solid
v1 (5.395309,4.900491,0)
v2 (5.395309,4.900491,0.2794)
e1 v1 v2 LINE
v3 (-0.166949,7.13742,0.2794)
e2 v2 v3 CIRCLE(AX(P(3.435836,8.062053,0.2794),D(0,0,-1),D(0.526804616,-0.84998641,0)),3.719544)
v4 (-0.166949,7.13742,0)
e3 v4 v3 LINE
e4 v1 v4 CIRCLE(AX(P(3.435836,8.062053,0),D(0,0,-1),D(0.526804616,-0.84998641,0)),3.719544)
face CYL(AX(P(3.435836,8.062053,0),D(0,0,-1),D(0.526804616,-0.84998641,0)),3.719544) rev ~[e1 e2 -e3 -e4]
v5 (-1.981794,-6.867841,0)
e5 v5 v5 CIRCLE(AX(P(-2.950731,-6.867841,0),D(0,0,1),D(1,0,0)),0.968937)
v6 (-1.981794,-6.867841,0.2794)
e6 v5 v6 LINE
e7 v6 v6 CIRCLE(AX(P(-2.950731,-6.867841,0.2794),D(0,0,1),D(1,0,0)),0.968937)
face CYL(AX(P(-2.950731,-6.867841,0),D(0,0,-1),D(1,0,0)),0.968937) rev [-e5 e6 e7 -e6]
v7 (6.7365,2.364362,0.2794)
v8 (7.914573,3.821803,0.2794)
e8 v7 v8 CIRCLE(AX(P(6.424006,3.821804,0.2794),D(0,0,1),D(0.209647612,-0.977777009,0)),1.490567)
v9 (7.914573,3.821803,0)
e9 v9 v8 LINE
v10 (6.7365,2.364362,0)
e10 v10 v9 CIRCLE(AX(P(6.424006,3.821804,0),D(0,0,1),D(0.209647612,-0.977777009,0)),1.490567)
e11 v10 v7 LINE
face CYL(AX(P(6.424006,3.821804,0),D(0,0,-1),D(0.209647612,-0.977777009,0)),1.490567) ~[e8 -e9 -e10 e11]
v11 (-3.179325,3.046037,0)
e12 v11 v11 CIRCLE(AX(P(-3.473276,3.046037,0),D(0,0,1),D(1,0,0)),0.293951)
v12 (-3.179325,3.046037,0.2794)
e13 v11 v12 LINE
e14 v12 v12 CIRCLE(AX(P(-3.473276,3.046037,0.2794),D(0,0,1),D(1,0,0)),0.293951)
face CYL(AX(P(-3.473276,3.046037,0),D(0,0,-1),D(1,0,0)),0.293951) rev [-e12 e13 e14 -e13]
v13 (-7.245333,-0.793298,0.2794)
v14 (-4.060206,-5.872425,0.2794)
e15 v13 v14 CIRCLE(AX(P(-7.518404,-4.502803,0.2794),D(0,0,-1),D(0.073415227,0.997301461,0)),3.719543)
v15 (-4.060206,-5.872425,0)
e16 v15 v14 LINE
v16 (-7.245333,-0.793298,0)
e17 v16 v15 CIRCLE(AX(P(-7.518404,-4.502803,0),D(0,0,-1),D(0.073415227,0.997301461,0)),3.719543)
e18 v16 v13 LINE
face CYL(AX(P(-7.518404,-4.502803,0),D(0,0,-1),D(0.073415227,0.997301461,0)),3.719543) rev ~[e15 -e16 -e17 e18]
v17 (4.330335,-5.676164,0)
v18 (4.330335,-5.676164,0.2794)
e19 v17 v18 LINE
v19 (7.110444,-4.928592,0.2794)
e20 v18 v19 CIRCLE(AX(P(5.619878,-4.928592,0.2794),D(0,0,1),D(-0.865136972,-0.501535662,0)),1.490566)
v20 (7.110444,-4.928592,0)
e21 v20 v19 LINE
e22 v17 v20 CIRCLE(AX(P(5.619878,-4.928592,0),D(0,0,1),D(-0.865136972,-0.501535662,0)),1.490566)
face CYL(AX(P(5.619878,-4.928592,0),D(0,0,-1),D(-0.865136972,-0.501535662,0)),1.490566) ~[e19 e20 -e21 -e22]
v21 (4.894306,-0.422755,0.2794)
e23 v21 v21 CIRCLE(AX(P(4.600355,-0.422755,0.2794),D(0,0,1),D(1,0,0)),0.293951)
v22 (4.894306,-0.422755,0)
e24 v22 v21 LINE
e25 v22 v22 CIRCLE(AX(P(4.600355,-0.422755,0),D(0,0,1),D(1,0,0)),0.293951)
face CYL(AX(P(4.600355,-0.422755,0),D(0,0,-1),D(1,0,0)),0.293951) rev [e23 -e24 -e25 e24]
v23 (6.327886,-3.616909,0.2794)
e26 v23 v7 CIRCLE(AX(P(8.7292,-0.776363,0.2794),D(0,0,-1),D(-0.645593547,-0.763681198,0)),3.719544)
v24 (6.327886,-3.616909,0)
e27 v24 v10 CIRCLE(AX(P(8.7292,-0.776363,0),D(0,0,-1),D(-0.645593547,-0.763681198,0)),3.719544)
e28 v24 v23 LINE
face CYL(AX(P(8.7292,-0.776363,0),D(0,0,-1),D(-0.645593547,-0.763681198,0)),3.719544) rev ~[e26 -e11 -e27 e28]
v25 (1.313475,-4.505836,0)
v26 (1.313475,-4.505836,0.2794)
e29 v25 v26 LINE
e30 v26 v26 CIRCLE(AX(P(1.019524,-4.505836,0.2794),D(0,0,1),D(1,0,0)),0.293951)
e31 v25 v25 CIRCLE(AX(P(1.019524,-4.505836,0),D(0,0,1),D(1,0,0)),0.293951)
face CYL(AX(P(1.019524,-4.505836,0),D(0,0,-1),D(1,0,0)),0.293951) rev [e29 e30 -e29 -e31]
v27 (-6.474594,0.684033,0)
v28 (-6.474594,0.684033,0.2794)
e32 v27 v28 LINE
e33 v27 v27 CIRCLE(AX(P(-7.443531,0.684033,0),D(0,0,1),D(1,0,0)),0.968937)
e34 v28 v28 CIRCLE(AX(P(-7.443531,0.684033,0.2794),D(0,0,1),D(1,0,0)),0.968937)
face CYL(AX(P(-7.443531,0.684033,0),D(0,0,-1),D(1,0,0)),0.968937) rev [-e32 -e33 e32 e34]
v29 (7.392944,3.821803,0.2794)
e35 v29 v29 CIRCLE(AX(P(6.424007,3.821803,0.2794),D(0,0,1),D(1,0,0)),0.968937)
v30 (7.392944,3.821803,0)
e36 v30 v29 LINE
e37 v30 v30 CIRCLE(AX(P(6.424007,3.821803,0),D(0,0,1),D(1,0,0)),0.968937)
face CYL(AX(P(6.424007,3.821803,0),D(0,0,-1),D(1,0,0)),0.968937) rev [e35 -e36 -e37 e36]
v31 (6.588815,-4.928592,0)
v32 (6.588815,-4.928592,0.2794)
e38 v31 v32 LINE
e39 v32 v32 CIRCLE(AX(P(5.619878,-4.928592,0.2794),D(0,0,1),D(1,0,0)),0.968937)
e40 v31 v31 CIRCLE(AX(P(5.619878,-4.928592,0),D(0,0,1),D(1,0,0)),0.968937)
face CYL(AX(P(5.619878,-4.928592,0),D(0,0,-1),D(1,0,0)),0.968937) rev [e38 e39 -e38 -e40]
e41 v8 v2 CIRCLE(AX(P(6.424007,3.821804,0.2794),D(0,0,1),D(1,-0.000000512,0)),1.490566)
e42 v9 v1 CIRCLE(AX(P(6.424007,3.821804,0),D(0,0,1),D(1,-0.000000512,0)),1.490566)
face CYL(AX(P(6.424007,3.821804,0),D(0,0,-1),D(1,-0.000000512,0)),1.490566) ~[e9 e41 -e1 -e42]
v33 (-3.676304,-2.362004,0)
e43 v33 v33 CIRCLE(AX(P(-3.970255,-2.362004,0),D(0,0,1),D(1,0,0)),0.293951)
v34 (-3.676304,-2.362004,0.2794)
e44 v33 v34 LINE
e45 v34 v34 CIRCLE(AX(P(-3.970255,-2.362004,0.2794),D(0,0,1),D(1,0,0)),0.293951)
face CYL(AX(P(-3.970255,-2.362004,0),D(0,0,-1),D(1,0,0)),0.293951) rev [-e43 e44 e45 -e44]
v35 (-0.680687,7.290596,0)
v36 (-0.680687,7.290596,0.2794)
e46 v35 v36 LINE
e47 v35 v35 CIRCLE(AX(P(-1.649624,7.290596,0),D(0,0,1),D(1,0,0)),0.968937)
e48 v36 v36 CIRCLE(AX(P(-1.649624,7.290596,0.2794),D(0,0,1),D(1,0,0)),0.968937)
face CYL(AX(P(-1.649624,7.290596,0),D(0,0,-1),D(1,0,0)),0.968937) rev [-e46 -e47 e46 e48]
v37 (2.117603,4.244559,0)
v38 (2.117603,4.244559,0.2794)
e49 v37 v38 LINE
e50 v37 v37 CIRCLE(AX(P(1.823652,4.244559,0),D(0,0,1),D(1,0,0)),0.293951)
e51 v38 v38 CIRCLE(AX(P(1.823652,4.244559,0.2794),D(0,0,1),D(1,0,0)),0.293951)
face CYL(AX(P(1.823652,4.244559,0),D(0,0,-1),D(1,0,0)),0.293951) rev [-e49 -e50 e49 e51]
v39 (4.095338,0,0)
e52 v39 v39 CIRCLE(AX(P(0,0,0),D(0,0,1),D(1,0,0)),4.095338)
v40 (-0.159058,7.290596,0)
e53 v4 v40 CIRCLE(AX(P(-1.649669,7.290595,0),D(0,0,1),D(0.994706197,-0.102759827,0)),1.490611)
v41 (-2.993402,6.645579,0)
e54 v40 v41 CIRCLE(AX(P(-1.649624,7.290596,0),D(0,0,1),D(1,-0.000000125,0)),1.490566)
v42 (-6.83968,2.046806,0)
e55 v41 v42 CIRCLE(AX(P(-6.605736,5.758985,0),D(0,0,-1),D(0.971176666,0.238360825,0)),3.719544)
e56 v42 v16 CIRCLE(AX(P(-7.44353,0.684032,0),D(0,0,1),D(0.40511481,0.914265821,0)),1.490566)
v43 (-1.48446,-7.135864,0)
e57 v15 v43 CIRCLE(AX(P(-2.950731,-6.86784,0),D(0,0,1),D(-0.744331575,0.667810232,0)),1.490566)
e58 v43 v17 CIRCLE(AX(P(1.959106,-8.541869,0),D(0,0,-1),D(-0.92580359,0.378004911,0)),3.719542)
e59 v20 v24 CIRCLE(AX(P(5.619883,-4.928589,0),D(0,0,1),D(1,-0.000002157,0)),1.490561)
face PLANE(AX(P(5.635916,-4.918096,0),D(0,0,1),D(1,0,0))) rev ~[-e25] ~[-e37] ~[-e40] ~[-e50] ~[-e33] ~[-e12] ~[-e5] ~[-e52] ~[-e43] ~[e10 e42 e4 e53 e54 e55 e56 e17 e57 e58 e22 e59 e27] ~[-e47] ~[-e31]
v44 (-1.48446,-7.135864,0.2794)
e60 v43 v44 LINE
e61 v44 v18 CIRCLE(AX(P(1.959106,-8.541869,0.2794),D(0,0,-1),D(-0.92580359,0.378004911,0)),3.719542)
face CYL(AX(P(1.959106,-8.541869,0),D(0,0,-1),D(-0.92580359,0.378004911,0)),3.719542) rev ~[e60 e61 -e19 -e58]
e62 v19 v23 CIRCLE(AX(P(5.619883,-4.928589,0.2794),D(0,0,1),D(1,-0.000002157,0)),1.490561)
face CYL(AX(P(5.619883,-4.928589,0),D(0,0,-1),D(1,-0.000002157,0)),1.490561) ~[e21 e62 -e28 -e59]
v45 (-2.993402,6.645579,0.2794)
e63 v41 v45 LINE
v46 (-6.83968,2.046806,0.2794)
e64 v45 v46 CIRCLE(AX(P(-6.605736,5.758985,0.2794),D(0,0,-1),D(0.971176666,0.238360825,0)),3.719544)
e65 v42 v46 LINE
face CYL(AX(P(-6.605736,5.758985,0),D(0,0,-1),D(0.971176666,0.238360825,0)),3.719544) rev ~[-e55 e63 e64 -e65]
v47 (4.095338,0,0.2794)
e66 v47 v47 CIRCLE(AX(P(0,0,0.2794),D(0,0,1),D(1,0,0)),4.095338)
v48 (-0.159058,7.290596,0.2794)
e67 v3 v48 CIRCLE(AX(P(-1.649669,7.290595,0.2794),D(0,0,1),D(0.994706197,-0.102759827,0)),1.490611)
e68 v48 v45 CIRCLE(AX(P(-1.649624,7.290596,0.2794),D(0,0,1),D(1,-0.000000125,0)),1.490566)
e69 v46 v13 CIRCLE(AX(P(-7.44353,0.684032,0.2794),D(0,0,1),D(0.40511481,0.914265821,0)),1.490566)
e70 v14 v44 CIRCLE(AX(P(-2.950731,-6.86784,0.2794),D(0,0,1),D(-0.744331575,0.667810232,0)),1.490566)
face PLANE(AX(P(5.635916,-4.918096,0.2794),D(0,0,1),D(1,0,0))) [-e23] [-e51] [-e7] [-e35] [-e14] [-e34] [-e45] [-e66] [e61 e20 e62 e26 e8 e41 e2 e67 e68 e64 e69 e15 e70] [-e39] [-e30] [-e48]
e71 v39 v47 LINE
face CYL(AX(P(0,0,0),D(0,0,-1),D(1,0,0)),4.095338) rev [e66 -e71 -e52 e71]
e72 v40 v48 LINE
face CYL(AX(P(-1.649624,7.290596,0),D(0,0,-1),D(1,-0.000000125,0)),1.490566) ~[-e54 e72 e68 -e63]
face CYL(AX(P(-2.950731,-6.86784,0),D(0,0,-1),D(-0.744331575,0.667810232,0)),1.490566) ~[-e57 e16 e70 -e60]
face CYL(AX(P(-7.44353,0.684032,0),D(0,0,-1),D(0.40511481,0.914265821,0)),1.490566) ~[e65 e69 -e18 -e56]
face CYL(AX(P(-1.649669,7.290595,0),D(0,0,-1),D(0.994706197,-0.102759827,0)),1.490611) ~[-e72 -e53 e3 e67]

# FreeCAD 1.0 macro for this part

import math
import FreeCAD as App
import Part
import Sketcher
Q = App.Units.Quantity

doc = App.newDocument("Part")
body = doc.addObject("PartDesign::Body", "Body")

# Sketch on XY plane
sketch1 = body.newObject("Sketcher::SketchObject", "Sketch")
sketch1.AttachmentSupport = (doc.getObject("XY_Plane"), [""])
sketch1.MapMode = "FlatFace"
sketch1.addGeometry([
    Part.ArcOfCircle(Part.Circle(App.Vector(5.619878, -4.928592, 0), App.Vector(0, 0, 1), 1.490566), math.radians(-149.898349), math.radians(0.000008)),  # 0
    Part.ArcOfCircle(Part.Circle(App.Vector(5.619883, -4.928589, 0), App.Vector(0, 0, 1), 1.490561), math.radians(-0.000124), math.radians(61.641238)),  # 1
    Part.ArcOfCircle(Part.Circle(App.Vector(8.7292, -0.776363, 0), App.Vector(0, 0, 1), 3.719544), math.radians(122.393948), math.radians(229.789808)),  # 2
    Part.ArcOfCircle(Part.Circle(App.Vector(6.424006, 3.821804, 0), App.Vector(0, 0, 1), 1.490567), math.radians(-77.898298), math.radians(-0.000035)),  # 3
    Part.ArcOfCircle(Part.Circle(App.Vector(6.424007, 3.821804, 0), App.Vector(0, 0, 1), 1.490566), math.radians(-0.000029), math.radians(133.64115)),  # 4
    Part.ArcOfCircle(Part.Circle(App.Vector(3.435836, 8.062053, 0), App.Vector(0, 0, 1), 3.719544), math.radians(-165.606047), math.radians(-58.210191)),  # 5
    Part.ArcOfCircle(Part.Circle(App.Vector(-1.649669, 7.290595, 0), App.Vector(0, 0, 1), 1.490611), math.radians(-5.898116), math.radians(0.000042)),  # 6
    Part.ArcOfCircle(Part.Circle(App.Vector(-1.649624, 7.290596, 0), App.Vector(0, 0, 1), 1.490566), math.radians(-0.000007), math.radians(205.641134)),  # 7
    Part.ArcOfCircle(Part.Circle(App.Vector(-6.605736, 5.758985, 0), App.Vector(0, 0, 1), 3.719544), math.radians(-93.606047), math.radians(13.789815)),  # 8
    Part.ArcOfCircle(Part.Circle(App.Vector(-7.44353, 0.684032, 0), App.Vector(0, 0, 1), 1.490566), math.radians(66.101678), math.radians(277.641128)),  # 9
    Part.ArcOfCircle(Part.Circle(App.Vector(-7.518404, -4.502803, 0), App.Vector(0, 0, 1), 3.719543), math.radians(-21.606076), math.radians(85.78983)),  # 10
    Part.ArcOfCircle(Part.Circle(App.Vector(-2.950731, -6.86784, 0), App.Vector(0, 0, 1), 1.490566), math.radians(138.101718), math.radians(349.641104)),  # 11
    Part.ArcOfCircle(Part.Circle(App.Vector(1.959106, -8.541869, 0), App.Vector(0, 0, 1), 3.719542), math.radians(50.393926), math.radians(157.789843)),  # 12
    Part.Circle(App.Vector(-2.950731, -6.867841, 0), App.Vector(0, 0, 1), 0.968937),  # 13
    Part.Circle(App.Vector(-3.970255, -2.362004, 0), App.Vector(0, 0, 1), 0.293951),  # 14
    Part.Circle(App.Vector(1.019524, -4.505836, 0), App.Vector(0, 0, 1), 0.293951),  # 15
    Part.Circle(App.Vector(5.619878, -4.928592, 0), App.Vector(0, 0, 1), 0.968937),  # 16
    Part.Circle(App.Vector(0, 0, 0), App.Vector(0, 0, 1), 4.095338),  # 17
    Part.Circle(App.Vector(4.600355, -0.422755, 0), App.Vector(0, 0, 1), 0.293951),  # 18
    Part.Circle(App.Vector(-7.443531, 0.684033, 0), App.Vector(0, 0, 1), 0.968937),  # 19
    Part.Circle(App.Vector(-3.473276, 3.046037, 0), App.Vector(0, 0, 1), 0.293951),  # 20
    Part.Circle(App.Vector(-1.649624, 7.290596, 0), App.Vector(0, 0, 1), 0.968937),  # 21
    Part.Circle(App.Vector(6.424007, 3.821803, 0), App.Vector(0, 0, 1), 0.968937),  # 22
    Part.Circle(App.Vector(1.823652, 4.244559, 0), App.Vector(0, 0, 1), 0.293951),  # 23
], False)
sketch1.addConstraint([
    Sketcher.Constraint("Coincident", 0, 2, 1, 1),
    Sketcher.Constraint("Coincident", 1, 2, 2, 2),
    Sketcher.Constraint("Coincident", 2, 1, 3, 1),
    Sketcher.Constraint("Coincident", 3, 2, 4, 1),
    Sketcher.Constraint("Coincident", 4, 2, 5, 2),
    Sketcher.Constraint("Coincident", 5, 1, 6, 1),
    Sketcher.Constraint("Coincident", 6, 2, 7, 1),
    Sketcher.Constraint("Coincident", 7, 2, 8, 2),
    Sketcher.Constraint("Coincident", 8, 1, 9, 1),
    Sketcher.Constraint("Coincident", 9, 2, 10, 2),
    Sketcher.Constraint("Coincident", 10, 1, 11, 1),
    Sketcher.Constraint("Coincident", 11, 2, 12, 2),
    Sketcher.Constraint("Coincident", 12, 1, 0, 1),
    Sketcher.Constraint("Coincident", 17, 3, -1, 1),
    Sketcher.Constraint("Coincident", 1, 3, 0, 3),
    Sketcher.Constraint("Coincident", 4, 3, 3, 3),
    Sketcher.Constraint("Coincident", 13, 3, 11, 3),
    Sketcher.Constraint("Coincident", 16, 3, 0, 3),
    Sketcher.Constraint("Coincident", 19, 3, 9, 3),
    Sketcher.Constraint("Coincident", 21, 3, 7, 3),
    Sketcher.Constraint("Coincident", 22, 3, 3, 3),
    Sketcher.Constraint("DistanceX", 10, 3, -1, 1, Q("0.2960002 in")),
    Sketcher.Constraint("Radius", 1, Q("1.490561 mm")),
    Sketcher.Constraint("Radius", 6, Q("1.490611 mm")),
    Sketcher.Constraint("Diameter", 13, Q("1.937874 mm")),
    Sketcher.Constraint("Diameter", 14, Q("0.587902 mm")),
    Sketcher.Constraint("Diameter", 15, Q("0.587902 mm")),
    Sketcher.Constraint("Diameter", 16, Q("1.937874 mm")),
    Sketcher.Constraint("Diameter", 17, Q("8.190676 mm")),
    Sketcher.Constraint("Diameter", 18, Q("0.587902 mm")),
    Sketcher.Constraint("Diameter", 19, Q("1.937874 mm")),
    Sketcher.Constraint("Diameter", 20, Q("0.587902 mm")),
    Sketcher.Constraint("Diameter", 21, Q("1.937874 mm")),
    Sketcher.Constraint("Diameter", 22, Q("1.937874 mm")),
    Sketcher.Constraint("Diameter", 23, Q("0.587902 mm")),
    Sketcher.Constraint("Radius", 2, Q("3.719544 mm")),
    Sketcher.Constraint("Radius", 3, Q("1.490567 mm")),
    Sketcher.Constraint("Radius", 5, Q("3.719544 mm")),
    Sketcher.Constraint("Radius", 7, Q("1.490566 mm")),
    Sketcher.Constraint("Radius", 8, Q("3.719544 mm")),
    Sketcher.Constraint("Radius", 9, Q("1.490566 mm")),
    Sketcher.Constraint("Radius", 10, Q("3.719543 mm")),
    Sketcher.Constraint("Radius", 11, Q("1.490566 mm")),
    Sketcher.Constraint("Radius", 12, Q("3.719542 mm")),
    Sketcher.Constraint("DistanceX", 5, 3, 2, 3, Q("0.2084001 in")),
    Sketcher.Constraint("DistanceX", 18, 3, 2, 1, Q("0.0841002 in")),
    Sketcher.Constraint("DistanceX", 4, 2, 3, 3, Q("0.0404999 in")),
    Sketcher.Constraint("DistanceX", -1, 1, 2, 3, Q("8.7292 mm")),
    Sketcher.Constraint("DistanceX", -1, 1, 2, 1, Q("6.7365 mm")),
    Sketcher.Constraint("DistanceY", 9, 2, -1, 1, Q("0.793298 mm")),
    Sketcher.Constraint("DistanceY", 10, 3, 6, 3, Q("11.793398 mm")),
    Sketcher.Constraint("DistanceX", 9, 3, 11, 3, Q("4.4928 mm")),
    Sketcher.Constraint("DistanceY", 10, 3, 14, 3, Q("2.140799 mm")),
    Sketcher.Constraint("DistanceX", 5, 1, 23, 3, Q("1.990601 mm")),
    Sketcher.Constraint("DistanceX", 19, 3, 9, 2, Q("0.198198 mm")),
    Sketcher.Constraint("DistanceX", 10, 3, 10, 1, Q("3.458198 mm")),
    Sketcher.Constraint("DistanceX", -1, 1, 0, 3, Q("5.619878 mm")),
    Sketcher.Constraint("DistanceY", 1, 3, -1, 1, Q("4.928589 mm")),
    Sketcher.Constraint("DistanceX", 6, 3, -1, 1, Q("1.649669 mm")),
    Sketcher.Constraint("DistanceX", 9, 3, -1, 1, Q("7.44353 mm")),
    Sketcher.Constraint("DistanceY", 12, 3, -1, 1, Q("8.541869 mm")),
    Sketcher.Constraint("DistanceY", -1, 1, 23, 3, Q("4.244559 mm")),
    Sketcher.Constraint("DistanceY", 1, 2, -1, 1, Q("3.616909 mm")),
    Sketcher.Constraint("DistanceX", -1, 1, 4, 2, Q("5.395309 mm")),
    Sketcher.Constraint("DistanceY", -1, 1, 7, 2, Q("6.645579 mm")),
    Sketcher.Constraint("DistanceX", 8, 1, -1, 1, Q("6.83968 mm")),
    Sketcher.Constraint("DistanceX", 11, 2, -1, 1, Q("1.48446 mm")),
    Sketcher.Constraint("DistanceY", 2, 3, 7, 3, Q("8.066959 mm")),
    Sketcher.Constraint("DistanceX", 10, 3, 14, 3, Q("3.548149 mm")),
    Sketcher.Constraint("DistanceX", 15, 3, 12, 3, Q("0.939582 mm")),
    Sketcher.Constraint("DistanceY", 2, 3, 18, 3, Q("0.353608 mm")),
    Sketcher.Constraint("DistanceX", 8, 3, 20, 3, Q("3.13246 mm")),
    Sketcher.Constraint("DistanceY", 20, 3, 8, 3, Q("2.712948 mm")),
    Sketcher.Constraint("DistanceY", 0, 2, 2, 3, Q("4.152229 mm")),
    Sketcher.Constraint("DistanceY", 2, 1, 3, 2, Q("1.457441 mm")),
    Sketcher.Constraint("DistanceY", 10, 1, 15, 3, Q("1.366589 mm")),
    Sketcher.Constraint("DistanceY", -1, 1, 6, 2, Q("7.290596 mm")),
])
pad1 = body.newObject("PartDesign::Pad", "Pad")
pad1.Profile = sketch1
pad1.Length = Q("0.011 in")

doc.recompute()
